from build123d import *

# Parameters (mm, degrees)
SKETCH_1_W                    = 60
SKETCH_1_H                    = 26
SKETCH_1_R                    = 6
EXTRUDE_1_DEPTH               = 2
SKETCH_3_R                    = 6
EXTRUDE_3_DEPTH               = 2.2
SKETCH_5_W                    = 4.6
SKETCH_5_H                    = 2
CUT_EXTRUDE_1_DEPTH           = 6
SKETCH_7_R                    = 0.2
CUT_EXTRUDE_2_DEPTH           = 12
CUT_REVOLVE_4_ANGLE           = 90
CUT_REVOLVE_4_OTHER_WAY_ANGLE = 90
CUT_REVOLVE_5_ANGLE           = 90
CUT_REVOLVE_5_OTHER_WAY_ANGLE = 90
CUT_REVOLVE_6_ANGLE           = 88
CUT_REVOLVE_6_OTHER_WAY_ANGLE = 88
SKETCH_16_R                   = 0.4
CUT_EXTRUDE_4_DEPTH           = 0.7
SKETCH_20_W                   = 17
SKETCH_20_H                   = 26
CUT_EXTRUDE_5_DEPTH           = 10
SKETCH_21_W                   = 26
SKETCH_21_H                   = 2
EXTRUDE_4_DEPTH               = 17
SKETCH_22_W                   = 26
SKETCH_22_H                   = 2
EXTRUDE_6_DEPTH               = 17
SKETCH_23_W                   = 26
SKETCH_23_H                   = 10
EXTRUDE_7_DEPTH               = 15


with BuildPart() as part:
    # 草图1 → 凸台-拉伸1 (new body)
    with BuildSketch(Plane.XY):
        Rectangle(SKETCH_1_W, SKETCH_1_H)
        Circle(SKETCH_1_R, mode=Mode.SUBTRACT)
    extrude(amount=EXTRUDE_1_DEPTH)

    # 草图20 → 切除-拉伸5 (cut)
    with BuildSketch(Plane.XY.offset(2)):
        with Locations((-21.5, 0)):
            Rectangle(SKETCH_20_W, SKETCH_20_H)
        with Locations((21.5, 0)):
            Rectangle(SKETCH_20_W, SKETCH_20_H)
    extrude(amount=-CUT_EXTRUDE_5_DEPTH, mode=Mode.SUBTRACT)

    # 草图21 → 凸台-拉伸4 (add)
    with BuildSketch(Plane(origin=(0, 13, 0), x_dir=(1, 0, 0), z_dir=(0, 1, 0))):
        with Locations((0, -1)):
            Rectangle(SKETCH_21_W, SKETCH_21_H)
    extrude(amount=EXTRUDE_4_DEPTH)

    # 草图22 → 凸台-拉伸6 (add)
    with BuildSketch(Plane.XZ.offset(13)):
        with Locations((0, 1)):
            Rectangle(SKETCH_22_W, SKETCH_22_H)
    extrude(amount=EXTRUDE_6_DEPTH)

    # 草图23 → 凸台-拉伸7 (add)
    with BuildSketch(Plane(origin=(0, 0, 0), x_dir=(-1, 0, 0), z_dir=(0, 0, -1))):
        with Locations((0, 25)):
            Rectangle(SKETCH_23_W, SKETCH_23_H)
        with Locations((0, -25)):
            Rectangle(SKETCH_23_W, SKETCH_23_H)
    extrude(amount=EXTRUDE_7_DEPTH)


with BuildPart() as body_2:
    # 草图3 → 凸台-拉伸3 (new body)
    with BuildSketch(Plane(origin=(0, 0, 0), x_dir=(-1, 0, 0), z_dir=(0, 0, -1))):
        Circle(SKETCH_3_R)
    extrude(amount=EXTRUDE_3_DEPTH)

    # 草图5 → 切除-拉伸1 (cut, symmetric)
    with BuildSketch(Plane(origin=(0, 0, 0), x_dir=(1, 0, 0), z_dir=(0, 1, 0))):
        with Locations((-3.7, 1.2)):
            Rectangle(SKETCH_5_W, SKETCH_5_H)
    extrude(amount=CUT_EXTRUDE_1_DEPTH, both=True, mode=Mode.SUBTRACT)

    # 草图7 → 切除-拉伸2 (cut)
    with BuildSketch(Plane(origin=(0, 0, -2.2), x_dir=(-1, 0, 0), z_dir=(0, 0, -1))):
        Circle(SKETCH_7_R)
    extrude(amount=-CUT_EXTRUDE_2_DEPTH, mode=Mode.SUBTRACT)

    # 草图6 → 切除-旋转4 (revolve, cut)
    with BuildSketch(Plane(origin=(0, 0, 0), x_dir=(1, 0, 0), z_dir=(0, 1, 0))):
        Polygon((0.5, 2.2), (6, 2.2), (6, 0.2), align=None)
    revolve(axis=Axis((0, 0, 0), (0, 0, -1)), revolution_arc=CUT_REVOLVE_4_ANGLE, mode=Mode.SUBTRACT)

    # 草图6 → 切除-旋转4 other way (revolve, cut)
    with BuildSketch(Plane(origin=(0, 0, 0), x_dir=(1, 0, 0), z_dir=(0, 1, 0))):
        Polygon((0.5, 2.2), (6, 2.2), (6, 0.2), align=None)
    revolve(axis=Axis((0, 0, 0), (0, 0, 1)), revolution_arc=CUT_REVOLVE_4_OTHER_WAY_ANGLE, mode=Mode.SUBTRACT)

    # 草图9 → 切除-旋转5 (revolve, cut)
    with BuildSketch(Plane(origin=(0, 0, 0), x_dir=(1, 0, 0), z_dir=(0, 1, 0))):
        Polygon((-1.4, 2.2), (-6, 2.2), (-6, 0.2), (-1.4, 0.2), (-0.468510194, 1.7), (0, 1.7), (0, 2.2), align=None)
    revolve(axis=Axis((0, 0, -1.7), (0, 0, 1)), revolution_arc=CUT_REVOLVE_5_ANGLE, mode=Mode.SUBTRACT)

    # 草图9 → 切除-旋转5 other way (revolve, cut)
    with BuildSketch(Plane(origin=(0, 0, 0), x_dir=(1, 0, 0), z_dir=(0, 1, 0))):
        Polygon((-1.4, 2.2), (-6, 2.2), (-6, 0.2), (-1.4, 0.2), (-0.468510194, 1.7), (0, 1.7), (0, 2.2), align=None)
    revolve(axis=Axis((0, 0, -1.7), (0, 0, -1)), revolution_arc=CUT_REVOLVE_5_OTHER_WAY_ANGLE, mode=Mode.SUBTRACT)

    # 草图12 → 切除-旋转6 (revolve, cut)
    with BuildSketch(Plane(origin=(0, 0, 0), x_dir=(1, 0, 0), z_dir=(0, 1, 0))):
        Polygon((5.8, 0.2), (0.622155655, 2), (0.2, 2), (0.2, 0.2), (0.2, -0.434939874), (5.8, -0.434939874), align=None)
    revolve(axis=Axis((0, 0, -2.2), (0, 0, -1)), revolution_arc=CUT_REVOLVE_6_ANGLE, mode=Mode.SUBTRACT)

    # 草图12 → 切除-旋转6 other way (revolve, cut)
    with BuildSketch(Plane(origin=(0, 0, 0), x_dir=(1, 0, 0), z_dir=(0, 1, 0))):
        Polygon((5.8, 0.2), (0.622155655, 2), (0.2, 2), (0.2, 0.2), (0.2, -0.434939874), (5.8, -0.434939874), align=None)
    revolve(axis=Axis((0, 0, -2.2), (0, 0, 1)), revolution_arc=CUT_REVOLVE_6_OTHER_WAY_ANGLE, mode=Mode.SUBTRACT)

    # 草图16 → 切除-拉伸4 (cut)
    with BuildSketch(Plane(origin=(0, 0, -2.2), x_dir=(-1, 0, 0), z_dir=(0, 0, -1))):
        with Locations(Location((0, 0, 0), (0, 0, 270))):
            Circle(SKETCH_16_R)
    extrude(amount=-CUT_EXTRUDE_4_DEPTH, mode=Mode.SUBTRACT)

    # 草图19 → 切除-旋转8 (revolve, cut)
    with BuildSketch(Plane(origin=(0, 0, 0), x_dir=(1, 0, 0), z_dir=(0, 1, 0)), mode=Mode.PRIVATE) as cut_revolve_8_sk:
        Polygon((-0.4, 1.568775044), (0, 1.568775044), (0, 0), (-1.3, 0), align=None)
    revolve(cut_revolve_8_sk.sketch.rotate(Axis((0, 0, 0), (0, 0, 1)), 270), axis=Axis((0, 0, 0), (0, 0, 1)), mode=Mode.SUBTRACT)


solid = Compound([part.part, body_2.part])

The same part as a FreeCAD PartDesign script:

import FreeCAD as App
import Part
import Sketcher

V = App.Vector
Q = App.Units.Quantity


def add_polygon(sketch, points):
    """Adds a closed chain of lines whose ends are joined by coincident constraints."""
    first, n = sketch.GeometryCount, len(points)
    for a, b in zip(points, points[1:] + points[:1]):
        sketch.addGeometry(Part.LineSegment(App.Vector(*a, 0), App.Vector(*b, 0)), False)
    for i in range(n):
        sketch.addConstraint(Sketcher.Constraint("Coincident", first + i, 2, first + (i + 1) % n, 1))

doc = App.newDocument("Part")
body = doc.addObject("PartDesign::Body", "Body")

sketch1 = body.newObject("Sketcher::SketchObject", "Sketch")
sketch1.AttachmentSupport = (doc.getObject("XY_Plane"), [""])
sketch1.MapMode = "FlatFace"
add_polygon(sketch1, [(-30, 13), (-30, -13), (30, -13), (30, 13)])
sketch1.addGeometry(Part.Circle(V(0, 0, 0), V(0, 0, 1), 6), False)
sketch1.addConstraint([
    Sketcher.Constraint("Vertical", 0),
    Sketcher.Constraint("Horizontal", 1),
    Sketcher.Constraint("Vertical", 2),
    Sketcher.Constraint("Horizontal", 3),
    Sketcher.Constraint("Coincident", 4, 3, -1, 1),
    Sketcher.Constraint("Symmetric", 0, 2, 2, 2, -1, 1),
    Sketcher.Constraint("Diameter", 4, 12.0),
    Sketcher.Constraint("DistanceX", 1, 1, 1, 2, 60.0),
    Sketcher.Constraint("DistanceY", 0, 2, 0, 1, 26.0),
])
pad1 = body.newObject("PartDesign::Pad", "Pad")
pad1.Profile = sketch1
pad1.Length = 2

sketch2 = body.newObject("Sketcher::SketchObject", "Sketch001")
sketch2.AttachmentSupport = (doc.getObject("XY_Plane"), [""])
sketch2.MapMode = "FlatFace"
sketch2.AttachmentOffset = App.Placement(V(0, 0, 2), App.Rotation())
add_polygon(sketch2, [(-30, 13), (-30, -13), (-13, -13), (-13, 13)])
add_polygon(sketch2, [(13, 13), (13, -13), (30, -13), (30, 13)])
sketch2.addConstraint([
    Sketcher.Constraint("Vertical", 0),
    Sketcher.Constraint("Horizontal", 1),
    Sketcher.Constraint("Vertical", 2),
    Sketcher.Constraint("Horizontal", 3),
    Sketcher.Constraint("Vertical", 4),
    Sketcher.Constraint("Horizontal", 5),
    Sketcher.Constraint("Vertical", 6),
    Sketcher.Constraint("Horizontal", 7),
    Sketcher.Constraint("Symmetric", 2, 2, 4, 2, -1, 1),
    Sketcher.Constraint("Symmetric", 0, 2, 6, 2, -1, 1),
    Sketcher.Constraint("Horizontal", 1, 2, 4, 2),
    Sketcher.Constraint("DistanceX", 1, 1, 1, 2, 17.0),
    Sketcher.Constraint("DistanceY", 0, 2, 0, 1, 26.0),
    Sketcher.Constraint("DistanceX", 0, 2, -1, 1, 30.0),
])
pocket1 = body.newObject("PartDesign::Pocket", "Pocket")
pocket1.Profile = sketch2
pocket1.Length = 10

sketch3 = body.newObject("Sketcher::SketchObject", "Sketch002")
sketch3.AttachmentSupport = (doc.getObject("XZ_Plane"), [""])
sketch3.MapMode = "FlatFace"
sketch3.AttachmentOffset = App.Placement(V(0, 0, -13), App.Rotation())
add_polygon(sketch3, [(-13, 0), (-13, 2), (13, 2), (13, 0)])
sketch3.addConstraint([
    Sketcher.Constraint("Vertical", 0),
    Sketcher.Constraint("Horizontal", 1),
    Sketcher.Constraint("Vertical", 2),
    Sketcher.Constraint("Horizontal", 3),
    Sketcher.Constraint("Symmetric", 2, 2, 3, 2, -1, 1),
    Sketcher.Constraint("DistanceX", 1, 1, 1, 2, 26.0),
    Sketcher.Constraint("DistanceY", 0, 1, 0, 2, 2.0),
])
pad2 = body.newObject("PartDesign::Pad", "Pad001")
pad2.Profile = sketch3
pad2.Length = 17
pad2.Reversed = True

sketch4 = body.newObject("Sketcher::SketchObject", "Sketch003")
sketch4.AttachmentSupport = (doc.getObject("XZ_Plane"), [""])
sketch4.MapMode = "FlatFace"
sketch4.AttachmentOffset = App.Placement(V(0, 0, 13), App.Rotation())
add_polygon(sketch4, [(-13, 2), (-13, 0), (13, 0), (13, 2)])
sketch4.addConstraint([
    Sketcher.Constraint("Vertical", 0),
    Sketcher.Constraint("Horizontal", 1),
    Sketcher.Constraint("Vertical", 2),
    Sketcher.Constraint("Horizontal", 3),
    Sketcher.Constraint("Symmetric", 0, 2, 1, 2, -1, 1),
    Sketcher.Constraint("DistanceX", 1, 1, 1, 2, 26.0),
    Sketcher.Constraint("DistanceY", 0, 2, 0, 1, 2.0),
])
pad3 = body.newObject("PartDesign::Pad", "Pad002")
pad3.Profile = sketch4
pad3.Length = 17

sketch5 = body.newObject("Sketcher::SketchObject", "Sketch004")
sketch5.AttachmentSupport = (doc.getObject("XY_Plane"), [""])
sketch5.MapMode = "FlatFace"
add_polygon(sketch5, [(13, 30), (13, 20), (-13, 20), (-13, 30)])
add_polygon(sketch5, [(13, -20), (13, -30), (-13, -30), (-13, -20)])
sketch5.addConstraint([
    Sketcher.Constraint("Vertical", 0),
    Sketcher.Constraint("Horizontal", 1),
    Sketcher.Constraint("Vertical", 2),
    Sketcher.Constraint("Horizontal", 3),
    Sketcher.Constraint("Vertical", 4),
    Sketcher.Constraint("Horizontal", 5),
    Sketcher.Constraint("Vertical", 6),
    Sketcher.Constraint("Horizontal", 7),
    Sketcher.Constraint("Symmetric", 2, 2, 4, 2, -1, 1),
    Sketcher.Constraint("Symmetric", 0, 2, 6, 2, -1, 1),
    Sketcher.Constraint("Vertical", 3, 2, 4, 2),
    Sketcher.Constraint("DistanceX", 1, 2, 1, 1, 26.0),
    Sketcher.Constraint("DistanceY", 0, 2, 0, 1, 10.0),
    Sketcher.Constraint("DistanceY", -1, 1, 0, 2, 20.0),
])
pad4 = body.newObject("PartDesign::Pad", "Pad003")
pad4.Profile = sketch5
pad4.Length = 15
pad4.Reversed = True
body2 = doc.addObject("PartDesign::Body", "Body001")

sketch6 = body2.newObject("Sketcher::SketchObject", "Sketch005")
sketch6.AttachmentSupport = (doc.getObject("XY_Plane001"), [""])
sketch6.MapMode = "FlatFace"
sketch6.addGeometry(Part.Circle(V(0, 0, 0), V(0, 0, 1), 6), False)
sketch6.addConstraint([
    Sketcher.Constraint("Coincident", 0, 3, -1, 1),
    Sketcher.Constraint("Diameter", 0, 12.0),
])
pad5 = body2.newObject("PartDesign::Pad", "Pad004")
pad5.Profile = sketch6
pad5.Length = 2.2
pad5.Reversed = True

sketch7 = body2.newObject("Sketcher::SketchObject", "Sketch006")
sketch7.AttachmentSupport = (doc.getObject("XZ_Plane001"), [""])
sketch7.MapMode = "FlatFace"
add_polygon(sketch7, [(-6, -2.2), (-6, -0.2), (-1.4, -0.2), (-1.4, -2.2)])
sketch7.addConstraint([
    Sketcher.Constraint("Vertical", 0),
    Sketcher.Constraint("Horizontal", 1),
    Sketcher.Constraint("Vertical", 2),
    Sketcher.Constraint("Horizontal", 3),
    Sketcher.Constraint("DistanceY", 0, 1, 0, 2, 2.0),
    Sketcher.Constraint("DistanceX", 1, 1, 1, 2, 4.6),
    Sketcher.Constraint("DistanceX", 0, 2, -1, 1, 6.0),
    Sketcher.Constraint("DistanceY", 0, 2, -1, 1, 0.2),
])
pocket2 = body2.newObject("PartDesign::Pocket", "Pocket001")
pocket2.Profile = sketch7
pocket2.Length = 12
pocket2.Midplane = True

sketch8 = body2.newObject("Sketcher::SketchObject", "Sketch007")
sketch8.AttachmentSupport = (doc.getObject("XY_Plane001"), [""])
sketch8.MapMode = "FlatFace"
sketch8.AttachmentOffset = App.Placement(V(0, 0, -2.2), App.Rotation())
sketch8.addGeometry(Part.Circle(V(0, 0, 0), V(0, 0, 1), 0.2), False)
sketch8.addConstraint([
    Sketcher.Constraint("Coincident", 0, 3, -1, 1),
    Sketcher.Constraint("Diameter", 0, 0.4),
])
pocket3 = body2.newObject("PartDesign::Pocket", "Pocket002")
pocket3.Profile = sketch8
pocket3.Length = 12
pocket3.Reversed = True

sketch9 = body2.newObject("Sketcher::SketchObject", "Sketch008")
sketch9.AttachmentSupport = (doc.getObject("XZ_Plane001"), [""])
sketch9.MapMode = "FlatFace"
add_polygon(sketch9, [(6, -2.2), (0.5, -2.2), (6, -0.2)])
sketch9.addConstraint([
    Sketcher.Constraint("Horizontal", 0),
    Sketcher.Constraint("Vertical", 2),
    Sketcher.Constraint("DistanceY", 2, 2, 2, 1, 2.0),
    Sketcher.Constraint("DistanceX", 0, 2, 0, 1, 5.5),
    Sketcher.Constraint("DistanceX", -1, 1, 1, 2, 6.0),
    Sketcher.Constraint("DistanceY", 0, 2, -1, 1, 2.2),
])
groove = body2.newObject("PartDesign::Groove", "Groove")
groove.Profile = sketch9
groove.ReferenceAxis = (sketch9, ["V_Axis"])
groove.Angle = 90
groove.Reversed = True

sketch10 = body2.newObject("Sketcher::SketchObject", "Sketch009")
sketch10.AttachmentSupport = (doc.getObject("XZ_Plane001"), [""])
sketch10.MapMode = "FlatFace"
add_polygon(sketch10, [(6, -2.2), (0.5, -2.2), (6, -0.2)])
sketch10.addConstraint([
    Sketcher.Constraint("Horizontal", 0),
    Sketcher.Constraint("Vertical", 2),
    Sketcher.Constraint("DistanceY", 2, 2, 2, 1, 2.0),
    Sketcher.Constraint("DistanceX", 0, 2, 0, 1, 5.5),
    Sketcher.Constraint("DistanceX", -1, 1, 1, 2, 6.0),
    Sketcher.Constraint("DistanceY", 0, 2, -1, 1, 2.2),
])
groove2 = body2.newObject("PartDesign::Groove", "Groove001")
groove2.Profile = sketch10
groove2.ReferenceAxis = (sketch10, ["V_Axis"])
groove2.Angle = 90

sketch11 = body2.newObject("Sketcher::SketchObject", "Sketch010")
sketch11.AttachmentSupport = (doc.getObject("XZ_Plane001"), [""])
sketch11.MapMode = "FlatFace"
add_polygon(sketch11, [(-6, -2.2), (-6, -0.2), (-1.4, -0.2), (-0.47, -1.7), (0, -1.7), (0, -2.2)])
sketch11.addConstraint([
    Sketcher.Constraint("Vertical", 0),
    Sketcher.Constraint("Horizontal", 1),
    Sketcher.Constraint("Horizontal", 3),
    Sketcher.Constraint("Vertical", 4),
    Sketcher.Constraint("Horizontal", 5),
    Sketcher.Constraint("PointOnObject", 3, 2, -2),
    Sketcher.Constraint("DistanceX", 5, 2, 5, 1, 6.0),
    Sketcher.Constraint("DistanceY", 0, 1, 0, 2, 2.0),
    Sketcher.Constraint("DistanceX", 1, 1, 1, 2, 4.6),
    Sketcher.Constraint("DistanceY", 4, 2, 4, 1, 0.5),
    Sketcher.Constraint("DistanceY", 0, 2, -1, 1, 0.2),
    Sketcher.Constraint("Angle", 2, Q("-58.16 deg")),
])
groove3 = body2.newObject("PartDesign::Groove", "Groove002")
groove3.Profile = sketch11
groove3.ReferenceAxis = (sketch11, ["V_Axis"])
groove3.Angle = 90

sketch12 = body2.newObject("Sketcher::SketchObject", "Sketch011")
sketch12.AttachmentSupport = (doc.getObject("XZ_Plane001"), [""])
sketch12.MapMode = "FlatFace"
add_polygon(sketch12, [(-6, -2.2), (-6, -0.2), (-1.4, -0.2), (-0.47, -1.7), (0, -1.7), (0, -2.2)])
sketch12.addConstraint([
    Sketcher.Constraint("Vertical", 0),
    Sketcher.Constraint("Horizontal", 1),
    Sketcher.Constraint("Horizontal", 3),
    Sketcher.Constraint("Vertical", 4),
    Sketcher.Constraint("Horizontal", 5),
    Sketcher.Constraint("PointOnObject", 3, 2, -2),
    Sketcher.Constraint("DistanceX", 5, 2, 5, 1, 6.0),
    Sketcher.Constraint("DistanceY", 0, 1, 0, 2, 2.0),
    Sketcher.Constraint("DistanceX", 1, 1, 1, 2, 4.6),
    Sketcher.Constraint("DistanceY", 4, 2, 4, 1, 0.5),
    Sketcher.Constraint("DistanceY", 0, 2, -1, 1, 0.2),
    Sketcher.Constraint("Angle", 2, Q("-58.16 deg")),
])
groove4 = body2.newObject("PartDesign::Groove", "Groove003")
groove4.Profile = sketch12
groove4.ReferenceAxis = (sketch12, ["V_Axis"])
groove4.Angle = 90
groove4.Reversed = True

sketch13 = body2.newObject("Sketcher::SketchObject", "Sketch012")
sketch13.AttachmentSupport = (doc.getObject("XZ_Plane001"), [""])
sketch13.MapMode = "FlatFace"
add_polygon(sketch13, [(5.8, -0.2), (0.62, -2), (0.2, -2), (0.2, 0.43), (5.8, 0.43)])
sketch13.addConstraint([
    Sketcher.Constraint("Horizontal", 1),
    Sketcher.Constraint("Vertical", 2),
    Sketcher.Constraint("Horizontal", 3),
    Sketcher.Constraint("Vertical", 4),
    Sketcher.Constraint("DistanceX", 3, 1, 3, 2, 5.6),
    Sketcher.Constraint("DistanceY", 0, 2, -1, 1, 2.0),
    Sketcher.Constraint("DistanceX", -1, 1, 1, 2, 0.2),
    Sketcher.Constraint("DistanceY", 4, 2, -1, 1, 0.2),
    Sketcher.Constraint("DistanceY", 2, 1, 2, 2, 2.43494),
    Sketcher.Constraint("DistanceX", 1, 2, 1, 1, 0.422156),
])
groove5 = body2.newObject("PartDesign::Groove", "Groove004")
groove5.Profile = sketch13
groove5.ReferenceAxis = (sketch13, ["V_Axis"])
groove5.Angle = 88
groove5.Reversed = True

sketch14 = body2.newObject("Sketcher::SketchObject", "Sketch013")
sketch14.AttachmentSupport = (doc.getObject("XZ_Plane001"), [""])
sketch14.MapMode = "FlatFace"
add_polygon(sketch14, [(5.8, -0.2), (0.62, -2), (0.2, -2), (0.2, 0.43), (5.8, 0.43)])
sketch14.addConstraint([
    Sketcher.Constraint("Horizontal", 1),
    Sketcher.Constraint("Vertical", 2),
    Sketcher.Constraint("Horizontal", 3),
    Sketcher.Constraint("Vertical", 4),
    Sketcher.Constraint("DistanceX", 3, 1, 3, 2, 5.6),
    Sketcher.Constraint("DistanceY", 0, 2, -1, 1, 2.0),
    Sketcher.Constraint("DistanceX", -1, 1, 1, 2, 0.2),
    Sketcher.Constraint("DistanceY", 4, 2, -1, 1, 0.2),
    Sketcher.Constraint("DistanceY", 2, 1, 2, 2, 2.43494),
    Sketcher.Constraint("DistanceX", 1, 2, 1, 1, 0.422156),
])
groove6 = body2.newObject("PartDesign::Groove", "Groove005")
groove6.Profile = sketch14
groove6.ReferenceAxis = (sketch14, ["V_Axis"])
groove6.Angle = 88

sketch15 = body2.newObject("Sketcher::SketchObject", "Sketch014")
sketch15.AttachmentSupport = (doc.getObject("XY_Plane001"), [""])
sketch15.MapMode = "FlatFace"
sketch15.AttachmentOffset = App.Placement(V(0, 0, -2.2), App.Rotation())
sketch15.addGeometry(Part.Circle(V(0, 0, 0), V(0, 0, 1), 0.4), False)
sketch15.addConstraint([
    Sketcher.Constraint("Coincident", 0, 3, -1, 1),
    Sketcher.Constraint("Diameter", 0, 0.8),
])
pocket4 = body2.newObject("PartDesign::Pocket", "Pocket003")
pocket4.Profile = sketch15
pocket4.Length = 0.7
pocket4.Reversed = True

sketch16 = body2.newObject("Sketcher::SketchObject", "Sketch015")
sketch16.AttachmentSupport = (doc.getObject("XZ_Plane001"), [""])
sketch16.MapMode = "FlatFace"
add_polygon(sketch16, [(0, -1.57), (-0.4, -1.57), (-1.3, 0), (0, 0)])
sketch16.addConstraint([
    Sketcher.Constraint("Horizontal", 0),
    Sketcher.Constraint("Horizontal", 2),
    Sketcher.Constraint("Vertical", 3),
    Sketcher.Constraint("Coincident", 2, 2, -1, 1),
    Sketcher.Constraint("DistanceX", 0, 2, 0, 1, 0.4),
    Sketcher.Constraint("DistanceX", 2, 1, 2, 2, 1.3),
    Sketcher.Constraint("DistanceY", 3, 2, 3, 1, 1.568775),
])
groove7 = body2.newObject("PartDesign::Groove", "Groove006")
groove7.Profile = sketch16
groove7.ReferenceAxis = (sketch16, ["V_Axis"])
groove7.Angle = 360

doc.recompute()
